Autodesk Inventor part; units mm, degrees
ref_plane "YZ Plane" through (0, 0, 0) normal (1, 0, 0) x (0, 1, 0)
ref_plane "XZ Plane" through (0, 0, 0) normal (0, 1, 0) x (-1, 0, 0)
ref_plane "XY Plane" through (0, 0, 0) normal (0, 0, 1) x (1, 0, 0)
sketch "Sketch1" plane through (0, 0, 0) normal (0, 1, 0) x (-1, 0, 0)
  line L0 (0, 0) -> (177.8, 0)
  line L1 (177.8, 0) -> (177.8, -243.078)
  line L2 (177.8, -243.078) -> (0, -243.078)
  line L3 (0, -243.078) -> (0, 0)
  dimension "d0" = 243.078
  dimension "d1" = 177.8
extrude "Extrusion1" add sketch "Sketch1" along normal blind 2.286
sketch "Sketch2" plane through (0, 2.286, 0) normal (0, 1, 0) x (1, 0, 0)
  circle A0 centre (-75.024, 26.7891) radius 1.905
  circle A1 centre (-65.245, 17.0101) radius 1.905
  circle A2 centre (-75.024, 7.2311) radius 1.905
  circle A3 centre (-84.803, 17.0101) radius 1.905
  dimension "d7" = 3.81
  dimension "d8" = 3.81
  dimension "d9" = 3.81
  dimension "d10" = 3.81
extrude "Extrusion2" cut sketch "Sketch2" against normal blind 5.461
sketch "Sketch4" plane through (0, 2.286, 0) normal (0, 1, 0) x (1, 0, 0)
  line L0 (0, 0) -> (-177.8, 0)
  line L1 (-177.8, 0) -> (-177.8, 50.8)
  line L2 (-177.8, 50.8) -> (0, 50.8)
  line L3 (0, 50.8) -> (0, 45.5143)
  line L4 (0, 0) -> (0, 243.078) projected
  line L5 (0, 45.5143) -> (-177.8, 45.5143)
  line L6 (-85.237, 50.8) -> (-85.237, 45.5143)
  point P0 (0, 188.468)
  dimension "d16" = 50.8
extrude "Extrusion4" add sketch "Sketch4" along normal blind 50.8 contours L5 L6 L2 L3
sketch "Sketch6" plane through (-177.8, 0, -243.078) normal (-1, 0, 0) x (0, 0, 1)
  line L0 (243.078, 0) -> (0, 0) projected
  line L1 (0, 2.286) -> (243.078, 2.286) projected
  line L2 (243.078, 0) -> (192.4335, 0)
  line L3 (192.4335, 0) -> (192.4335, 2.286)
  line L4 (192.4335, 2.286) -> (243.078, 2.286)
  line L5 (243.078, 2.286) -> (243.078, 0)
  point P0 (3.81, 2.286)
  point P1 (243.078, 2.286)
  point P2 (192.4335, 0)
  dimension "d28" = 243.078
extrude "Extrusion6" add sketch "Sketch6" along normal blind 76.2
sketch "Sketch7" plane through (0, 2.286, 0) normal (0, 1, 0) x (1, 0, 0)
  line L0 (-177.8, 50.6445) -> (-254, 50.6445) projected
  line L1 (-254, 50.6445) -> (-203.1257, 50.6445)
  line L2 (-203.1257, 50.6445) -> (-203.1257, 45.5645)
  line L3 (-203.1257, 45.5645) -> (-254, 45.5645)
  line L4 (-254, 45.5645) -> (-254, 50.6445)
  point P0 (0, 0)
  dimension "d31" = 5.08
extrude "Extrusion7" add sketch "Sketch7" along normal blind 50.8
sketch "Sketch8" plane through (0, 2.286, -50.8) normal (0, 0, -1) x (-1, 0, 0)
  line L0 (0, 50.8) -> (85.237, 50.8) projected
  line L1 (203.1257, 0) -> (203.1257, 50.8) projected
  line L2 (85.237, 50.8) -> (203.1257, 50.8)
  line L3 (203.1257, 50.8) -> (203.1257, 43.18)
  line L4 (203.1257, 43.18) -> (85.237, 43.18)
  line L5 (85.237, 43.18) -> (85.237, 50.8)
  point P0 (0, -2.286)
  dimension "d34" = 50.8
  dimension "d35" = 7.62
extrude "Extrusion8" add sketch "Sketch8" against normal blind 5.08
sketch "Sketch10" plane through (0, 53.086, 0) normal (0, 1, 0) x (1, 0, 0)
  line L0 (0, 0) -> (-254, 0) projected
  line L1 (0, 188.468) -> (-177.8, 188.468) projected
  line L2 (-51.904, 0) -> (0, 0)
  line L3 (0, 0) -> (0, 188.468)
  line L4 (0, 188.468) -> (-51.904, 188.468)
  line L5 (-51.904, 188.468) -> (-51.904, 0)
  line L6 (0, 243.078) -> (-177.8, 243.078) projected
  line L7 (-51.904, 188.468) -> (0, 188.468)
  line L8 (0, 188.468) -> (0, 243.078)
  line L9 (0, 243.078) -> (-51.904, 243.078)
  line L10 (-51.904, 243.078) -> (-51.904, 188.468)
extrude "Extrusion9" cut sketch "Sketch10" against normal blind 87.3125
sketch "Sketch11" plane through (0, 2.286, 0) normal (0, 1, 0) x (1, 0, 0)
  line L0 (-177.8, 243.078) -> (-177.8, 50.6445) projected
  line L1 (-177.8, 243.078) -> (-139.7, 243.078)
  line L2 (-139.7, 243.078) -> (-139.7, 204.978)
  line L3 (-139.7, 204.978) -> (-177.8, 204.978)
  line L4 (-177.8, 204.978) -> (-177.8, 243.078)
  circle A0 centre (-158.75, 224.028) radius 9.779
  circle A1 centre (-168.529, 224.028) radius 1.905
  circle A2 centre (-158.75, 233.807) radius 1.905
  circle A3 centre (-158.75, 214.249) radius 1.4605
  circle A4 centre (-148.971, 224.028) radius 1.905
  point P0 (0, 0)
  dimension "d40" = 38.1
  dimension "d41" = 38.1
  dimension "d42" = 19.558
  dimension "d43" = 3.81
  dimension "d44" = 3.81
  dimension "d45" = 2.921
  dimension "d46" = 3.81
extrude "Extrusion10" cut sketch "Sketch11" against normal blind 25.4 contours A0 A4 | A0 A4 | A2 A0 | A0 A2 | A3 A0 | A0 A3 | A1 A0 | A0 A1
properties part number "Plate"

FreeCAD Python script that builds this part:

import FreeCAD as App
import Part
import Sketcher

V = App.Vector
Q = App.Units.Quantity

doc = App.newDocument("Part")
body = doc.addObject("PartDesign::Body", "Body")

sketch1 = doc.addObject("Sketcher::SketchObject", "Sketch")
body.addObject(sketch1)
sketch1.AttachmentSupport = (doc.XZ_Plane, [""])
sketch1.MapMode = "FlatFace"
sketch1.addGeometry(Part.LineSegment(V(-178, 0, 0), V(0, 0, 0)), False)
sketch1.addGeometry(Part.LineSegment(V(0, 0, 0), V(0, -243, 0)), False)
sketch1.addGeometry(Part.LineSegment(V(0, -243, 0), V(-178, -243, 0)), False)
sketch1.addGeometry(Part.LineSegment(V(-178, -243, 0), V(-178, 0, 0)), False)
sketch1.addConstraint(Sketcher.Constraint("Coincident", 0, 2, 1, 1))
sketch1.addConstraint(Sketcher.Constraint("Coincident", 1, 2, 2, 1))
sketch1.addConstraint(Sketcher.Constraint("Coincident", 2, 2, 3, 1))
sketch1.addConstraint(Sketcher.Constraint("Coincident", 3, 2, 0, 1))
sketch1.addConstraint(Sketcher.Constraint("Horizontal", 0))
sketch1.addConstraint(Sketcher.Constraint("Vertical", 1))
sketch1.addConstraint(Sketcher.Constraint("Horizontal", 2))
sketch1.addConstraint(Sketcher.Constraint("Vertical", 3))
sketch1.addConstraint(Sketcher.Constraint("Coincident", 0, 2, -1, 1))
sketch1.addConstraint(Sketcher.Constraint("DistanceX", 0, 1, 0, 2, Q("7 in")))
sketch1.addConstraint(Sketcher.Constraint("DistanceY", 1, 2, 1, 1, Q("9.57 in")))
pad1 = doc.addObject("PartDesign::Pad", "Pad")
body.addObject(pad1)
pad1.Profile = sketch1
pad1.Length = Q("0.09 in")
pad1.Reversed = True

sketch2 = doc.addObject("Sketcher::SketchObject", "Sketch001")
body.addObject(sketch2)
sketch2.AttachmentSupport = (doc.XZ_Plane, [""])
sketch2.MapMode = "FlatFace"
sketch2.AttachmentOffset = App.Placement(V(0, 0, -0.09 * 25.4), App.Rotation())
sketch2.addGeometry(Part.Circle(V(-75, -26.8, 0), V(0, 0, 1), 1.9), False)
sketch2.addGeometry(Part.Circle(V(-65.2, -17, 0), V(0, 0, 1), 1.9), False)
sketch2.addGeometry(Part.Circle(V(-75, -7.2, 0), V(0, 0, 1), 1.9), False)
sketch2.addGeometry(Part.Circle(V(-84.8, -17, 0), V(0, 0, 1), 1.9), False)
sketch2.addConstraint(Sketcher.Constraint("Equal", 0, 1))
sketch2.addConstraint(Sketcher.Constraint("Equal", 1, 2))
sketch2.addConstraint(Sketcher.Constraint("Equal", 2, 3))
sketch2.addConstraint(Sketcher.Constraint("Horizontal", 1, 3, 3, 3))
sketch2.addConstraint(Sketcher.Constraint("Vertical", 0, 3, 2, 3))
sketch2.addConstraint(Sketcher.Constraint("Diameter", 0, Q("0.15 in")))
sketch2.addConstraint(Sketcher.Constraint("DistanceY", 0, 3, 2, 3, Q("0.77 in")))
sketch2.addConstraint(Sketcher.Constraint("DistanceX", 3, 3, 1, 3, Q("0.77 in")))
sketch2.addConstraint(Sketcher.Constraint("DistanceX", 0, 3, 1, 3, Q("0.385 in")))
sketch2.addConstraint(Sketcher.Constraint("DistanceY", 0, 3, 1, 3, Q("0.385 in")))
sketch2.addConstraint(Sketcher.Constraint("DistanceX", 0, 3, -1, 1, Q("2.9537 in")))
sketch2.addConstraint(Sketcher.Constraint("DistanceY", 0, 3, -1, 1, Q("1.0547 in")))
pocket1 = doc.addObject("PartDesign::Pocket", "Pocket")
body.addObject(pocket1)
pocket1.Profile = sketch2
pocket1.Length = Q("0.215 in")
pocket1.Reversed = True

sketch3 = doc.addObject("Sketcher::SketchObject", "Sketch002")
body.addObject(sketch3)
sketch3.AttachmentSupport = (doc.XZ_Plane, [""])
sketch3.MapMode = "FlatFace"
sketch3.AttachmentOffset = App.Placement(V(0, 0, -0.09 * 25.4), App.Rotation())
sketch3.addGeometry(Part.LineSegment(V(-85, -46, 0), V(0, -46, 0)), False)
sketch3.addGeometry(Part.LineSegment(V(0, -46, 0), V(0, -51, 0)), False)
sketch3.addGeometry(Part.LineSegment(V(0, -51, 0), V(-85, -51, 0)), False)
sketch3.addGeometry(Part.LineSegment(V(-85, -51, 0), V(-85, -46, 0)), False)
sketch3.addConstraint(Sketcher.Constraint("Coincident", 0, 2, 1, 1))
sketch3.addConstraint(Sketcher.Constraint("Coincident", 1, 2, 2, 1))
sketch3.addConstraint(Sketcher.Constraint("Coincident", 2, 2, 3, 1))
sketch3.addConstraint(Sketcher.Constraint("Coincident", 3, 2, 0, 1))
sketch3.addConstraint(Sketcher.Constraint("Horizontal", 0))
sketch3.addConstraint(Sketcher.Constraint("Vertical", 1))
sketch3.addConstraint(Sketcher.Constraint("Horizontal", 2))
sketch3.addConstraint(Sketcher.Constraint("Vertical", 3))
sketch3.addConstraint(Sketcher.Constraint("PointOnObject", 0, 2, -2))
sketch3.addConstraint(Sketcher.Constraint("DistanceY", 1, 2, -1, 1, Q("2 in")))
sketch3.addConstraint(Sketcher.Constraint("DistanceY", 1, 2, 1, 1, Q("0.2081 in")))
sketch3.addConstraint(Sketcher.Constraint("DistanceX", 0, 1, 0, 2, 85.237))
pad2 = doc.addObject("PartDesign::Pad", "Pad001")
body.addObject(pad2)
pad2.Profile = sketch3
pad2.Length = Q("2 in")
pad2.Reversed = True

sketch4 = doc.addObject("Sketcher::SketchObject", "Sketch003")
body.addObject(sketch4)
sketch4.AttachmentSupport = (doc.YZ_Plane, [""])
sketch4.MapMode = "FlatFace"
sketch4.AttachmentOffset = App.Placement(V(0, 0, -7 * 25.4), App.Rotation())
sketch4.addGeometry(Part.LineSegment(V(0, -50.6, 0), V(0, 0, 0)), False)
sketch4.addGeometry(Part.LineSegment(V(0, 0, 0), V(2.3, 0, 0)), False)
sketch4.addGeometry(Part.LineSegment(V(2.3, 0, 0), V(2.3, -50.6, 0)), False)
sketch4.addGeometry(Part.LineSegment(V(2.3, -50.6, 0), V(0, -50.6, 0)), False)
sketch4.addConstraint(Sketcher.Constraint("Coincident", 0, 2, 1, 1))
sketch4.addConstraint(Sketcher.Constraint("Coincident", 1, 2, 2, 1))
sketch4.addConstraint(Sketcher.Constraint("Coincident", 2, 2, 3, 1))
sketch4.addConstraint(Sketcher.Constraint("Coincident", 3, 2, 0, 1))
sketch4.addConstraint(Sketcher.Constraint("Vertical", 0))
sketch4.addConstraint(Sketcher.Constraint("Horizontal", 1))
sketch4.addConstraint(Sketcher.Constraint("Vertical", 2))
sketch4.addConstraint(Sketcher.Constraint("Horizontal", 3))
sketch4.addConstraint(Sketcher.Constraint("Coincident", 0, 2, -1, 1))
sketch4.addConstraint(Sketcher.Constraint("DistanceX", 1, 1, 1, 2, Q("0.09 in")))
sketch4.addConstraint(Sketcher.Constraint("DistanceY", 0, 1, 0, 2, 50.6445))
pad3 = doc.addObject("PartDesign::Pad", "Pad002")
body.addObject(pad3)
pad3.Profile = sketch4
pad3.Length = Q("3 in")
pad3.Reversed = True

sketch5 = doc.addObject("Sketcher::SketchObject", "Sketch004")
body.addObject(sketch5)
sketch5.AttachmentSupport = (doc.XZ_Plane, [""])
sketch5.MapMode = "FlatFace"
sketch5.AttachmentOffset = App.Placement(V(0, 0, -0.09 * 25.4), App.Rotation())
sketch5.addGeometry(Part.LineSegment(V(-203, -46, 0), V(-203, -51, 0)), False)
sketch5.addGeometry(Part.LineSegment(V(-203, -51, 0), V(-254, -51, 0)), False)
sketch5.addGeometry(Part.LineSegment(V(-254, -51, 0), V(-254, -46, 0)), False)
sketch5.addGeometry(Part.LineSegment(V(-254, -46, 0), V(-203, -46, 0)), False)
sketch5.addConstraint(Sketcher.Constraint("Coincident", 0, 2, 1, 1))
sketch5.addConstraint(Sketcher.Constraint("Coincident", 1, 2, 2, 1))
sketch5.addConstraint(Sketcher.Constraint("Coincident", 2, 2, 3, 1))
sketch5.addConstraint(Sketcher.Constraint("Coincident", 3, 2, 0, 1))
sketch5.addConstraint(Sketcher.Constraint("Vertical", 0))
sketch5.addConstraint(Sketcher.Constraint("Horizontal", 1))
sketch5.addConstraint(Sketcher.Constraint("Vertical", 2))
sketch5.addConstraint(Sketcher.Constraint("Horizontal", 3))
sketch5.addConstraint(Sketcher.Constraint("DistanceY", 0, 2, 0, 1, Q("0.2 in")))
sketch5.addConstraint(Sketcher.Constraint("DistanceX", 1, 2, -1, 1, Q("10 in")))
sketch5.addConstraint(Sketcher.Constraint("DistanceX", 1, 2, 1, 1, 50.8743))
sketch5.addConstraint(Sketcher.Constraint("DistanceY", 0, 2, -1, 1, 50.6445))
pad4 = doc.addObject("PartDesign::Pad", "Pad003")
body.addObject(pad4)
pad4.Profile = sketch5
pad4.Length = Q("2 in")
pad4.Reversed = True

sketch6 = doc.addObject("Sketcher::SketchObject", "Sketch005")
body.addObject(sketch6)
sketch6.AttachmentSupport = (doc.XY_Plane, [""])
sketch6.MapMode = "FlatFace"
sketch6.AttachmentOffset = App.Placement(V(0, 0, -2 * 25.4), App.Rotation())
sketch6.addGeometry(Part.LineSegment(V(-85, 45, 0), V(-203, 45, 0)), False)
sketch6.addGeometry(Part.LineSegment(V(-203, 45, 0), V(-203, 53, 0)), False)
sketch6.addGeometry(Part.LineSegment(V(-203, 53, 0), V(-85, 53, 0)), False)
sketch6.addGeometry(Part.LineSegment(V(-85, 53, 0), V(-85, 45, 0)), False)
sketch6.addConstraint(Sketcher.Constraint("Coincident", 0, 2, 1, 1))
sketch6.addConstraint(Sketcher.Constraint("Coincident", 1, 2, 2, 1))
sketch6.addConstraint(Sketcher.Constraint("Coincident", 2, 2, 3, 1))
sketch6.addConstraint(Sketcher.Constraint("Coincident", 3, 2, 0, 1))
sketch6.addConstraint(Sketcher.Constraint("Horizontal", 0))
sketch6.addConstraint(Sketcher.Constraint("Vertical", 1))
sketch6.addConstraint(Sketcher.Constraint("Horizontal", 2))
sketch6.addConstraint(Sketcher.Constraint("Vertical", 3))
sketch6.addConstraint(Sketcher.Constraint("DistanceY", 1, 1, 1, 2, Q("0.3 in")))
sketch6.addConstraint(Sketcher.Constraint("DistanceY", -1, 1, 0, 2, Q("1.79 in")))
sketch6.addConstraint(Sketcher.Constraint("DistanceX", 0, 2, 0, 1, 117.8887))
sketch6.addConstraint(Sketcher.Constraint("DistanceX", 0, 2, -1, 1, 203.1257))
pad5 = doc.addObject("PartDesign::Pad", "Pad004")
body.addObject(pad5)
pad5.Profile = sketch6
pad5.Length = Q("0.2 in")

sketch7 = doc.addObject("Sketcher::SketchObject", "Sketch006")
body.addObject(sketch7)
sketch7.AttachmentSupport = (doc.XZ_Plane, [""])
sketch7.MapMode = "FlatFace"
sketch7.AttachmentOffset = App.Placement(V(0, 0, -2.09 * 25.4), App.Rotation())
sketch7.addGeometry(Part.LineSegment(V(-52, 0, 0), V(0, 0, 0)), False)
sketch7.addGeometry(Part.LineSegment(V(0, 0, 0), V(0, -243, 0)), False)
sketch7.addGeometry(Part.LineSegment(V(0, -243, 0), V(-52, -243, 0)), False)
sketch7.addGeometry(Part.LineSegment(V(-52, -243, 0), V(-52, 0, 0)), False)
sketch7.addConstraint(Sketcher.Constraint("Coincident", 0, 2, 1, 1))
sketch7.addConstraint(Sketcher.Constraint("Coincident", 1, 2, 2, 1))
sketch7.addConstraint(Sketcher.Constraint("Coincident", 2, 2, 3, 1))
sketch7.addConstraint(Sketcher.Constraint("Coincident", 3, 2, 0, 1))
sketch7.addConstraint(Sketcher.Constraint("Horizontal", 0))
sketch7.addConstraint(Sketcher.Constraint("Vertical", 1))
sketch7.addConstraint(Sketcher.Constraint("Horizontal", 2))
sketch7.addConstraint(Sketcher.Constraint("Vertical", 3))
sketch7.addConstraint(Sketcher.Constraint("Coincident", 0, 2, -1, 1))
sketch7.addConstraint(Sketcher.Constraint("DistanceY", 1, 2, 1, 1, Q("9.57 in")))
sketch7.addConstraint(Sketcher.Constraint("DistanceX", 0, 1, 0, 2, 51.904))
pocket2 = doc.addObject("PartDesign::Pocket", "Pocket001")
body.addObject(pocket2)
pocket2.Profile = sketch7
pocket2.Length = Q("3.4375 in")
pocket2.Reversed = True

sketch8 = doc.addObject("Sketcher::SketchObject", "Sketch007")
body.addObject(sketch8)
sketch8.AttachmentSupport = (doc.XZ_Plane, [""])
sketch8.MapMode = "FlatFace"
sketch8.AttachmentOffset = App.Placement(V(0, 0, -0.09 * 25.4), App.Rotation())
sketch8.addGeometry(Part.Circle(V(-149, -224, 0), V(0, 0, 1), 1.9), False)
sketch8.addGeometry(Part.Circle(V(-158.8, -233.8, 0), V(0, 0, 1), 1.9), False)
sketch8.addGeometry(Part.Circle(V(-158.8, -214.2, 0), V(0, 0, 1), 1.5), False)
sketch8.addGeometry(Part.Circle(V(-168.5, -224, 0), V(0, 0, 1), 1.9), False)
sketch8.addConstraint(Sketcher.Constraint("Equal", 0, 1))
sketch8.addConstraint(Sketcher.Constraint("Equal", 1, 3))
sketch8.addConstraint(Sketcher.Constraint("Horizontal", 0, 3, 3, 3))
sketch8.addConstraint(Sketcher.Constraint("Vertical", 1, 3, 2, 3))
sketch8.addConstraint(Sketcher.Constraint("Diameter", 0, Q("0.15 in")))
sketch8.addConstraint(Sketcher.Constraint("Diameter", 2, Q("0.115 in")))
sketch8.addConstraint(Sketcher.Constraint("DistanceY", 1, 3, 2, 3, Q("0.77 in")))
sketch8.addConstraint(Sketcher.Constraint("DistanceX", 3, 3, 0, 3, Q("0.77 in")))
sketch8.addConstraint(Sketcher.Constraint("DistanceY", 0, 3, -1, 1, Q("8.82 in")))
sketch8.addConstraint(Sketcher.Constraint("DistanceX", 1, 3, -1, 1, Q("6.25 in")))
sketch8.addConstraint(Sketcher.Constraint("DistanceX", 0, 3, -1, 1, Q("5.865 in")))
sketch8.addConstraint(Sketcher.Constraint("DistanceY", 1, 3, -1, 1, Q("9.205 in")))
pocket3 = doc.addObject("PartDesign::Pocket", "Pocket002")
body.addObject(pocket3)
pocket3.Profile = sketch8
pocket3.Length = Q("1 in")
pocket3.Reversed = True

doc.recompute()
